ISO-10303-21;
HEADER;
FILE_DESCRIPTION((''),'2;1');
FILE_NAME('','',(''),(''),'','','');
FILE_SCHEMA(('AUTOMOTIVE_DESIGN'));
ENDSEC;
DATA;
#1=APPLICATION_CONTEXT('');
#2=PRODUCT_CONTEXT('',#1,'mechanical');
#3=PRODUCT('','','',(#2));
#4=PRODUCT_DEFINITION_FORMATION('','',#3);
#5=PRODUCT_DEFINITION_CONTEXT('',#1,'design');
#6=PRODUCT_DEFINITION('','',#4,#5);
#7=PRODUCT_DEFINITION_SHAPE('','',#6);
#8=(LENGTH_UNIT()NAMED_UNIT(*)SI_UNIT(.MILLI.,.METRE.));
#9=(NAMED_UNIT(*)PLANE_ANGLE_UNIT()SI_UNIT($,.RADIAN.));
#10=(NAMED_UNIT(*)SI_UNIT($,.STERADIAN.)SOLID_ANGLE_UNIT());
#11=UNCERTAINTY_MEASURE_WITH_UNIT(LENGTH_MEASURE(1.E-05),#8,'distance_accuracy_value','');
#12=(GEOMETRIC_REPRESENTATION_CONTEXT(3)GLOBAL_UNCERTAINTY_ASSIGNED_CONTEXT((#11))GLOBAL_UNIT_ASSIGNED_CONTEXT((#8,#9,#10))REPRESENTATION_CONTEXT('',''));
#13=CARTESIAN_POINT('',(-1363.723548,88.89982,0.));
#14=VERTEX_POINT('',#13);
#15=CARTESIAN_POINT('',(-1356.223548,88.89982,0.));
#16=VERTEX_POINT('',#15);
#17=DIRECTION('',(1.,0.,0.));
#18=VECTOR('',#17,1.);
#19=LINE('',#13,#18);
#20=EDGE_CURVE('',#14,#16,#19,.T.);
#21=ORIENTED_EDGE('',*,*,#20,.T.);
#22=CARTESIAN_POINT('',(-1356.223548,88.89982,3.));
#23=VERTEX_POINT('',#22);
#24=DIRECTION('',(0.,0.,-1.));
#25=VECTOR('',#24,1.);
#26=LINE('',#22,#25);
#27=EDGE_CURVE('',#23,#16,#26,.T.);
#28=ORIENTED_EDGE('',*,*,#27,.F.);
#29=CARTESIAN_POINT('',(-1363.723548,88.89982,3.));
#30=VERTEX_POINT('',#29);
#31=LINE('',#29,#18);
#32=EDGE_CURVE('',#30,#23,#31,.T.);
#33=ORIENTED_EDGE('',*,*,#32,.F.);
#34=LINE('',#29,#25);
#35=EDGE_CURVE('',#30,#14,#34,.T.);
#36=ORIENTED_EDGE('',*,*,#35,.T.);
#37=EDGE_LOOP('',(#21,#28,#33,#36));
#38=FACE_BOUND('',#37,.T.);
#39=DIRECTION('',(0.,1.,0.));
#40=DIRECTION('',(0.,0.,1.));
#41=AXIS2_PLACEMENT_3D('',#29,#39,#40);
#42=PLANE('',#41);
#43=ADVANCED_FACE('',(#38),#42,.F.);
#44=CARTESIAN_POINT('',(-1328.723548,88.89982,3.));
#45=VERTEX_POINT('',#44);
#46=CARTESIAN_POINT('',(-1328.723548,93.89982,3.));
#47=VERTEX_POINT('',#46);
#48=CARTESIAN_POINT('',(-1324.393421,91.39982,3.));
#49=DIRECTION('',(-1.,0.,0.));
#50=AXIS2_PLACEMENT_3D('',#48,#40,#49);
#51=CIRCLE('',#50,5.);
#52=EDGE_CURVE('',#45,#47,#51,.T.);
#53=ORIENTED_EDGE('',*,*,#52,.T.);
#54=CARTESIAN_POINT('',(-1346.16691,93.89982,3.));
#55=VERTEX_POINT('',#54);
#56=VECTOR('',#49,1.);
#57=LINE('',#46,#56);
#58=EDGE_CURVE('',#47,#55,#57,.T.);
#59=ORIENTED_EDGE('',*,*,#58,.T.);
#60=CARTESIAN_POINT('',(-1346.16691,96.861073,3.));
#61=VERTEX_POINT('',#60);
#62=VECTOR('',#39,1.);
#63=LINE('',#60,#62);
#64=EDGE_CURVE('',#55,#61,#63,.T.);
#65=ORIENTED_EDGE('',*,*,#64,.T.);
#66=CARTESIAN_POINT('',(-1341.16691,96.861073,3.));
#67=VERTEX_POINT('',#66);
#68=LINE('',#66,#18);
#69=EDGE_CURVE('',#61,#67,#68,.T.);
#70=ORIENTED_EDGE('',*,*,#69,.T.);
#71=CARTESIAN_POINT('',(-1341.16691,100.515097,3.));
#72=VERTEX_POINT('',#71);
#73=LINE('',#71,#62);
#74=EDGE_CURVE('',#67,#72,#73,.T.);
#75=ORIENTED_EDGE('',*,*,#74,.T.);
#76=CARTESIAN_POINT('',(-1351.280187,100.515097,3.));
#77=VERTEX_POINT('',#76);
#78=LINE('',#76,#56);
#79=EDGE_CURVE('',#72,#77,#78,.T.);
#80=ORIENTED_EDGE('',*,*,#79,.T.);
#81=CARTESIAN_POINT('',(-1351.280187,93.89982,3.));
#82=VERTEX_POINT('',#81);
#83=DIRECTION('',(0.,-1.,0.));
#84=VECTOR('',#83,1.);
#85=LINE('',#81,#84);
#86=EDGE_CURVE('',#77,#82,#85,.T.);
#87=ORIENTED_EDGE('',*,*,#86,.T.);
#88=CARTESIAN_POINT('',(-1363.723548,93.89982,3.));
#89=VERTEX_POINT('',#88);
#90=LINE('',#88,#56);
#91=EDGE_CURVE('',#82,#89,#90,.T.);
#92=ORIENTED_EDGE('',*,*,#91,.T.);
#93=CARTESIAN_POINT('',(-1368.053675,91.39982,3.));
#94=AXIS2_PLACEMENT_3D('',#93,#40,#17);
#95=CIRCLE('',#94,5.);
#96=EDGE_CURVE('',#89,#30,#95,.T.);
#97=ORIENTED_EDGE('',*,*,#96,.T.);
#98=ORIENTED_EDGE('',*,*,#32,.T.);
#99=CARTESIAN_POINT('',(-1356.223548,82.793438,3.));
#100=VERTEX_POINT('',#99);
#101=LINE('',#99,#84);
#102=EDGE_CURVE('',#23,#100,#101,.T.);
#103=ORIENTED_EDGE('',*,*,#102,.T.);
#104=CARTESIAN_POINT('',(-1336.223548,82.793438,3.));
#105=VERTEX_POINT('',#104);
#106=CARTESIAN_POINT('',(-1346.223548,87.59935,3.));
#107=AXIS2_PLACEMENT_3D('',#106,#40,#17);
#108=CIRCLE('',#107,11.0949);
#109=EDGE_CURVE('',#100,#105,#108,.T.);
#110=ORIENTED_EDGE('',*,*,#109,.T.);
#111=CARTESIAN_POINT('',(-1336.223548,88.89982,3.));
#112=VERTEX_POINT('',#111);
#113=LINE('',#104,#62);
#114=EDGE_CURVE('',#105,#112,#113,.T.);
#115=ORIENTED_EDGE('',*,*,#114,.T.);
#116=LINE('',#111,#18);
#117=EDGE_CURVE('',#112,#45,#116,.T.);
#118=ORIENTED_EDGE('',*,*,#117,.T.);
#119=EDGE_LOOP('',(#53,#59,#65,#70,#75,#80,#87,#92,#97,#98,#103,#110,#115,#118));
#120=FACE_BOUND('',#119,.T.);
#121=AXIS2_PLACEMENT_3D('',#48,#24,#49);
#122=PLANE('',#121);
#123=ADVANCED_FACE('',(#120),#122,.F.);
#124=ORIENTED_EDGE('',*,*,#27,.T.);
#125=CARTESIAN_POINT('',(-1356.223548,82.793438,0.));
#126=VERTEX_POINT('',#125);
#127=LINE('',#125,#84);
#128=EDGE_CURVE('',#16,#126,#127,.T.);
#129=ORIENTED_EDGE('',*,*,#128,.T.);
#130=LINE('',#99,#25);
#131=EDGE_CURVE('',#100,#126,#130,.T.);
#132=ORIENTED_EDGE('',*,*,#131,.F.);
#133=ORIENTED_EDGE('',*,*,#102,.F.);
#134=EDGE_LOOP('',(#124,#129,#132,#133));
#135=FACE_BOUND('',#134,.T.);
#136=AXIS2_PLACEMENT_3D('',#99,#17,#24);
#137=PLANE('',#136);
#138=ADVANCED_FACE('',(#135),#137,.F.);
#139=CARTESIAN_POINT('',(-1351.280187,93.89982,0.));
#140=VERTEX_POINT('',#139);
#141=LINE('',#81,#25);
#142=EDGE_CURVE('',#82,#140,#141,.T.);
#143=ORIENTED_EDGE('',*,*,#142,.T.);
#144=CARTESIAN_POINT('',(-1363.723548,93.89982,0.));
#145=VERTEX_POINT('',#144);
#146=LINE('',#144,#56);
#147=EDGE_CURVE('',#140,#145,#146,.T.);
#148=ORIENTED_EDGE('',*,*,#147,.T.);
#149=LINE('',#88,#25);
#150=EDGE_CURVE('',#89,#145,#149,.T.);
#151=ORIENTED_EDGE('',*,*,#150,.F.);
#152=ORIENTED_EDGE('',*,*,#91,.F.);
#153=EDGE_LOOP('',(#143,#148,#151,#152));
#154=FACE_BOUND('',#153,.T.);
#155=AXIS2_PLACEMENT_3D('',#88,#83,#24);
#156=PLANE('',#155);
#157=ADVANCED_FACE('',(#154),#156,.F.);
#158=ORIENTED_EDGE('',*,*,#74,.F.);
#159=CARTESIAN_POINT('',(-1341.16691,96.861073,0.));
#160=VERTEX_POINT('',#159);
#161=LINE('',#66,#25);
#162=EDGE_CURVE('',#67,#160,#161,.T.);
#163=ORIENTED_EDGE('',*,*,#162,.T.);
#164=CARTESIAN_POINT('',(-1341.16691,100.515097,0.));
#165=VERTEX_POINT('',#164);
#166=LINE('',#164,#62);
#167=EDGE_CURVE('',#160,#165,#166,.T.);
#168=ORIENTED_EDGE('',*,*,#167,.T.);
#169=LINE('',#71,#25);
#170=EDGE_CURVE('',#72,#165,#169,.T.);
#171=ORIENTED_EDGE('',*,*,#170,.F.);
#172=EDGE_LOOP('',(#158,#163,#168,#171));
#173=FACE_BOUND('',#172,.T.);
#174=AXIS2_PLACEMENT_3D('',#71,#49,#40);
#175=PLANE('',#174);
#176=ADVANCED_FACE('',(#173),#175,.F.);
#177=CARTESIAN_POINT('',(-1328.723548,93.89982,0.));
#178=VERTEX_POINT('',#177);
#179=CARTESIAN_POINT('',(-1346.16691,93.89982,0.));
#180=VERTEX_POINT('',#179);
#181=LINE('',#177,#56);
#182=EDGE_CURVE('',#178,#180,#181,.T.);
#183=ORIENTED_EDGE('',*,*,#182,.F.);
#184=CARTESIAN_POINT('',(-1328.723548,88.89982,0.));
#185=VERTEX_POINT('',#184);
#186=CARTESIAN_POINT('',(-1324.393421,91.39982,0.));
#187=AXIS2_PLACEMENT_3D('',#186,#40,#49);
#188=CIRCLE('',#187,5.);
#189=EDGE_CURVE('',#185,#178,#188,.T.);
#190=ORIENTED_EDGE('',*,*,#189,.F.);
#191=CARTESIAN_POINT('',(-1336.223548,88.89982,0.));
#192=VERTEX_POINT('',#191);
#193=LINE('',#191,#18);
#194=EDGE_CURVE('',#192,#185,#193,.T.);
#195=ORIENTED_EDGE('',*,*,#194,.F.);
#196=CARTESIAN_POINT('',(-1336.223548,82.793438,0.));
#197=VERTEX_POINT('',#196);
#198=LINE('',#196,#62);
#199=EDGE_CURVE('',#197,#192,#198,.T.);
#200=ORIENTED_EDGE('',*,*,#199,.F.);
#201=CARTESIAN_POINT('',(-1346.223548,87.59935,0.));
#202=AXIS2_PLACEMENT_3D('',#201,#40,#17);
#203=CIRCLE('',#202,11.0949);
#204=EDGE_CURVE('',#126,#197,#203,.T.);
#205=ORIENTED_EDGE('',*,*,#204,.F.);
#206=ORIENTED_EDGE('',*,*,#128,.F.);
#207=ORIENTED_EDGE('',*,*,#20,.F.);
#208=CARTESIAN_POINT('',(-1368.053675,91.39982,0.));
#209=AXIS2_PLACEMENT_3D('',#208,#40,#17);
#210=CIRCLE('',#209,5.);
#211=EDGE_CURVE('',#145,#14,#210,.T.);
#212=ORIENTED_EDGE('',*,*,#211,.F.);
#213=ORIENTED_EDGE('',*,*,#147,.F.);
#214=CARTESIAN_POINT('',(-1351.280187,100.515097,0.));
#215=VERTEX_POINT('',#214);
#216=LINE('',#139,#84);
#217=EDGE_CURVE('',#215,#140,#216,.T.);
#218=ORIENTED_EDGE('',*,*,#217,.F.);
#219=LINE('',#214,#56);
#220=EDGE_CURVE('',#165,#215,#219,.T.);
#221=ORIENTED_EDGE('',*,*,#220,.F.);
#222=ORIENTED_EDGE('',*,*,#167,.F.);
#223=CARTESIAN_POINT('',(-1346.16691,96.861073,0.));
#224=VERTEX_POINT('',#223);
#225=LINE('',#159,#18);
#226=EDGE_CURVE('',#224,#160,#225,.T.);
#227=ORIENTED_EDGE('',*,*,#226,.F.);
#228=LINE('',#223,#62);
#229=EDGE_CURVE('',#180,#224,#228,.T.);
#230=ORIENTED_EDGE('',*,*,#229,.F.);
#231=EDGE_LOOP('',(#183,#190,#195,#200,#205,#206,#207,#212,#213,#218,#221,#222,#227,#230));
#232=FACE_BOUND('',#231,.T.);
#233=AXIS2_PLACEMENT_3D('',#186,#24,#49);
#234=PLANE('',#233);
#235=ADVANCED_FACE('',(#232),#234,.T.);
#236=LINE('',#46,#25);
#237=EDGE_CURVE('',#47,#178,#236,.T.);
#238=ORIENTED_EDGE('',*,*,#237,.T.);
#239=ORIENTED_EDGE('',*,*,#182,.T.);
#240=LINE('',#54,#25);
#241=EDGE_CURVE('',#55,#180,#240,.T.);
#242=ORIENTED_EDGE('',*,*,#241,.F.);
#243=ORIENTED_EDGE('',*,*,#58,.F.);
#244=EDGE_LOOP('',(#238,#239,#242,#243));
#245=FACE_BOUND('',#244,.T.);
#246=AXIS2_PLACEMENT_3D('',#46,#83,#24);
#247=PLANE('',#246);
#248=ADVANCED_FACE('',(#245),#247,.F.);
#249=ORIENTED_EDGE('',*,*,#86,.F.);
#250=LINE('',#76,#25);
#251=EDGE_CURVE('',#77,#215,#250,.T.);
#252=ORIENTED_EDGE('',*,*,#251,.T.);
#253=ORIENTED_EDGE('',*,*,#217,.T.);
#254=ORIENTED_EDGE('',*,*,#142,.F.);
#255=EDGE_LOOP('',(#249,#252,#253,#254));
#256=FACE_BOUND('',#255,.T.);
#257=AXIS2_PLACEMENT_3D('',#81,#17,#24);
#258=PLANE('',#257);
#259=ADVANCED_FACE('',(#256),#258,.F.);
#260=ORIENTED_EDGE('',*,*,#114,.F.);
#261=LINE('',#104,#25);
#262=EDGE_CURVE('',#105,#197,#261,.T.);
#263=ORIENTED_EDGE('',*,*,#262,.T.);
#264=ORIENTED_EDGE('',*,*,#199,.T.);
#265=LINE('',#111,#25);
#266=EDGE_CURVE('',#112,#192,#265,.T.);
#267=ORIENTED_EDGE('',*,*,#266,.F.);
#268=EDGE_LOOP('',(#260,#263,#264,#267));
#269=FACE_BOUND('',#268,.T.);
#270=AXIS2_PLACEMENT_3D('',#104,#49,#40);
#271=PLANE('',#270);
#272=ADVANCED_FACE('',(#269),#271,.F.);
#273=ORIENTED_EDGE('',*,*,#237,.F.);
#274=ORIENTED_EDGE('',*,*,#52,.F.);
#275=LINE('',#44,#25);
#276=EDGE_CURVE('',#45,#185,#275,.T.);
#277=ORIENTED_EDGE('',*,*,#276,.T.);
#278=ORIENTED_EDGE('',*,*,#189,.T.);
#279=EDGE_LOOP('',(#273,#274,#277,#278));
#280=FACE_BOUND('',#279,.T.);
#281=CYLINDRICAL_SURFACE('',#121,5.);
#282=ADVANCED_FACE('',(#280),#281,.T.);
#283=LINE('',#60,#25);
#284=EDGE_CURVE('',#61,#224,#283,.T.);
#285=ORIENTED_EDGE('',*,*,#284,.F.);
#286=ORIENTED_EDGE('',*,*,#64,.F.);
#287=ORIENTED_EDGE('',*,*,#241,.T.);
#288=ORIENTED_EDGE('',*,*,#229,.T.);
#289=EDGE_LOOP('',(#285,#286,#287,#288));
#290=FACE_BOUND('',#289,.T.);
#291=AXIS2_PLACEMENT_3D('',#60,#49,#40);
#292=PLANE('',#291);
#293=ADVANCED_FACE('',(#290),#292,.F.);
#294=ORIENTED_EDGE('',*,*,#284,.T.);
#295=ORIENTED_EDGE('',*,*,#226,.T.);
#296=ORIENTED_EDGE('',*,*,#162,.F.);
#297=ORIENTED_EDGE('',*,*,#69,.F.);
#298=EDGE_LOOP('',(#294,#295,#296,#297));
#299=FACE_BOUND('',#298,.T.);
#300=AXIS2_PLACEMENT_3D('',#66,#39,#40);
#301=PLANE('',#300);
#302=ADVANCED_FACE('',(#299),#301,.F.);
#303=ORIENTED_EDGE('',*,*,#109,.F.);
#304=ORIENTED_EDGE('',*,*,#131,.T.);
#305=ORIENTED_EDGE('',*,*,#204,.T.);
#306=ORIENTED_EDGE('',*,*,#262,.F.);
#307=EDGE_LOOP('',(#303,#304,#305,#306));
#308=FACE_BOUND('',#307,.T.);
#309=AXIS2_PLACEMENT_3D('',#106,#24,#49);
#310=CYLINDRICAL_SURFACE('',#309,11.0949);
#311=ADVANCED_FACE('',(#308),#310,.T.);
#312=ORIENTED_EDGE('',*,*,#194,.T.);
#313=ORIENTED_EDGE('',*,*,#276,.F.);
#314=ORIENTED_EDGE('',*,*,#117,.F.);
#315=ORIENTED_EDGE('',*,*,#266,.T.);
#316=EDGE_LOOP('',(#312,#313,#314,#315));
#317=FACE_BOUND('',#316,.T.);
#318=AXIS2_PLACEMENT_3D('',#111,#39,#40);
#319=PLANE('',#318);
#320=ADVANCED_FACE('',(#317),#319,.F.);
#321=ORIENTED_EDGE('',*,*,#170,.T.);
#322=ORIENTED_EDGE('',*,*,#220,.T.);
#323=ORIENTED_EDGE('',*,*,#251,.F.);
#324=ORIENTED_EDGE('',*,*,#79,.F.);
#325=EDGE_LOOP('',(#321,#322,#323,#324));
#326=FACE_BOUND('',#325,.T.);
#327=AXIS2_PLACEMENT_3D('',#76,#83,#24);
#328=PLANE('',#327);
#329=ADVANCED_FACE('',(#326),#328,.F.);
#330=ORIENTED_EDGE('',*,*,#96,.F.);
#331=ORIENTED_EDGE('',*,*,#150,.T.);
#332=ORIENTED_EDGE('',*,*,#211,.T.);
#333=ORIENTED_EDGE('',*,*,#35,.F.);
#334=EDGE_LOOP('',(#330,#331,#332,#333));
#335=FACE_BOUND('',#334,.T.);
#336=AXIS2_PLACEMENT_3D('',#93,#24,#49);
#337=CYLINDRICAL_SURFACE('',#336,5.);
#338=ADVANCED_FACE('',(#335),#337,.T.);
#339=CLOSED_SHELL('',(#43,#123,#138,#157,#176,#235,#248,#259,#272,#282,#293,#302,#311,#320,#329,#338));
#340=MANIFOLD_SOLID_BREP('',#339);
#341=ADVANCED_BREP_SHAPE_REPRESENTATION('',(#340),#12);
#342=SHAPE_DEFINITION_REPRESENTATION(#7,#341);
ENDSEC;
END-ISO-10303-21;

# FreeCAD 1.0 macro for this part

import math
import FreeCAD as App
import Part
import Sketcher
Q = App.Units.Quantity

doc = App.newDocument("Part")
body = doc.addObject("PartDesign::Body", "Body")

# Sketch on XY plane
sketch1 = body.newObject("Sketcher::SketchObject", "Sketch")
sketch1.AttachmentSupport = (doc.getObject("XY_Plane"), [""])
sketch1.MapMode = "FlatFace"
sketch1.addGeometry([
    Part.LineSegment(App.Vector(-1341.2, 100.5, 0), App.Vector(-1351.3, 100.5, 0)),  # 0
    Part.LineSegment(App.Vector(-1351.3, 100.5, 0), App.Vector(-1351.3, 93.9, 0)),  # 1
    Part.LineSegment(App.Vector(-1351.3, 93.9, 0), App.Vector(-1363.7, 93.9, 0)),  # 2
    Part.ArcOfCircle(Part.Circle(App.Vector(-1368.1, 91.4, 0), App.Vector(0, 0, 1), 5), math.radians(30), math.radians(330)),  # 3
    Part.LineSegment(App.Vector(-1363.7, 88.9, 0), App.Vector(-1356.2, 88.9, 0)),  # 4
    Part.LineSegment(App.Vector(-1356.2, 88.9, 0), App.Vector(-1356.2, 82.8, 0)),  # 5
    Part.ArcOfCircle(Part.Circle(App.Vector(-1346.2, 87.6, 0), App.Vector(0, 0, 1), 11.1), math.radians(-154), math.radians(-26)),  # 6
    Part.LineSegment(App.Vector(-1336.2, 82.8, 0), App.Vector(-1336.2, 88.9, 0)),  # 7
    Part.LineSegment(App.Vector(-1336.2, 88.9, 0), App.Vector(-1328.7, 88.9, 0)),  # 8
    Part.ArcOfCircle(Part.Circle(App.Vector(-1324.4, 91.4, 0), App.Vector(0, 0, 1), 5), math.radians(-150), math.radians(150)),  # 9
    Part.LineSegment(App.Vector(-1328.7, 93.9, 0), App.Vector(-1346.2, 93.9, 0)),  # 10
    Part.LineSegment(App.Vector(-1346.2, 93.9, 0), App.Vector(-1346.2, 96.9, 0)),  # 11
    Part.LineSegment(App.Vector(-1346.2, 96.9, 0), App.Vector(-1341.2, 96.9, 0)),  # 12
    Part.LineSegment(App.Vector(-1341.2, 96.9, 0), App.Vector(-1341.2, 100.5, 0)),  # 13
], False)
sketch1.addConstraint([
    Sketcher.Constraint("Coincident", 0, 2, 1, 1),
    Sketcher.Constraint("Coincident", 1, 2, 2, 1),
    Sketcher.Constraint("Coincident", 2, 2, 3, 1),
    Sketcher.Constraint("Coincident", 3, 2, 4, 1),
    Sketcher.Constraint("Coincident", 4, 2, 5, 1),
    Sketcher.Constraint("Coincident", 5, 2, 6, 1),
    Sketcher.Constraint("Coincident", 6, 2, 7, 1),
    Sketcher.Constraint("Coincident", 7, 2, 8, 1),
    Sketcher.Constraint("Coincident", 8, 2, 9, 1),
    Sketcher.Constraint("Coincident", 9, 2, 10, 1),
    Sketcher.Constraint("Coincident", 10, 2, 11, 1),
    Sketcher.Constraint("Coincident", 11, 2, 12, 1),
    Sketcher.Constraint("Coincident", 12, 2, 13, 1),
    Sketcher.Constraint("Coincident", 13, 2, 0, 1),
    Sketcher.Constraint("Horizontal", 0),
    Sketcher.Constraint("Vertical", 1),
    Sketcher.Constraint("Horizontal", 2),
    Sketcher.Constraint("Horizontal", 4),
    Sketcher.Constraint("Vertical", 5),
    Sketcher.Constraint("Vertical", 7),
    Sketcher.Constraint("Horizontal", 8),
    Sketcher.Constraint("Horizontal", 10),
    Sketcher.Constraint("Vertical", 11),
    Sketcher.Constraint("Horizontal", 12),
    Sketcher.Constraint("Vertical", 13),
    Sketcher.Constraint("Equal", 3, 9),
    Sketcher.Constraint("Horizontal", 3, 3, 9, 3),
    Sketcher.Constraint("Horizontal", 5, 2, 6, 2),
    Sketcher.Constraint("Horizontal", 4, 2, 7, 2),
    Sketcher.Constraint("Horizontal", 2, 2, 9, 2),
    Sketcher.Constraint("Vertical", 2, 2, 3, 2),
    Sketcher.Constraint("Equal", 4, 8),
    Sketcher.Constraint("Radius", 3, Q("5 mm")),
    Sketcher.Constraint("DistanceX", 12, 1, 12, 2, Q("5 mm")),
    Sketcher.Constraint("DistanceX", 4, 1, 4, 2, Q("7.5 mm")),
    Sketcher.Constraint("DistanceY", 3, 2, 2, 2, Q("5 mm")),
    Sketcher.Constraint("DistanceX", 4, 2, 6, 3, Q("10 mm")),
    Sketcher.Constraint("Radius", 6, Q("11.0949 mm")),
    Sketcher.Constraint("DistanceX", 2, 2, 2, 1, Q("12.443362 mm")),
    Sketcher.Constraint("DistanceX", 10, 2, 10, 1, Q("17.443362 mm")),
    Sketcher.Constraint("DistanceY", 1, 2, 1, 1, Q("6.615277 mm")),
    Sketcher.Constraint("DistanceY", 5, 2, 5, 1, Q("6.106383 mm")),
    Sketcher.Constraint("DistanceY", 11, 1, 11, 2, Q("2.961253 mm")),
    Sketcher.Constraint("DistanceY", -1, 1, 3, 3, Q("91.39982 mm")),
    Sketcher.Constraint("DistanceX", 6, 3, -1, 1, Q("1346.223548 mm")),
])
pad1 = body.newObject("PartDesign::Pad", "Pad")
pad1.Profile = sketch1
pad1.Length = 3

doc.recompute()
